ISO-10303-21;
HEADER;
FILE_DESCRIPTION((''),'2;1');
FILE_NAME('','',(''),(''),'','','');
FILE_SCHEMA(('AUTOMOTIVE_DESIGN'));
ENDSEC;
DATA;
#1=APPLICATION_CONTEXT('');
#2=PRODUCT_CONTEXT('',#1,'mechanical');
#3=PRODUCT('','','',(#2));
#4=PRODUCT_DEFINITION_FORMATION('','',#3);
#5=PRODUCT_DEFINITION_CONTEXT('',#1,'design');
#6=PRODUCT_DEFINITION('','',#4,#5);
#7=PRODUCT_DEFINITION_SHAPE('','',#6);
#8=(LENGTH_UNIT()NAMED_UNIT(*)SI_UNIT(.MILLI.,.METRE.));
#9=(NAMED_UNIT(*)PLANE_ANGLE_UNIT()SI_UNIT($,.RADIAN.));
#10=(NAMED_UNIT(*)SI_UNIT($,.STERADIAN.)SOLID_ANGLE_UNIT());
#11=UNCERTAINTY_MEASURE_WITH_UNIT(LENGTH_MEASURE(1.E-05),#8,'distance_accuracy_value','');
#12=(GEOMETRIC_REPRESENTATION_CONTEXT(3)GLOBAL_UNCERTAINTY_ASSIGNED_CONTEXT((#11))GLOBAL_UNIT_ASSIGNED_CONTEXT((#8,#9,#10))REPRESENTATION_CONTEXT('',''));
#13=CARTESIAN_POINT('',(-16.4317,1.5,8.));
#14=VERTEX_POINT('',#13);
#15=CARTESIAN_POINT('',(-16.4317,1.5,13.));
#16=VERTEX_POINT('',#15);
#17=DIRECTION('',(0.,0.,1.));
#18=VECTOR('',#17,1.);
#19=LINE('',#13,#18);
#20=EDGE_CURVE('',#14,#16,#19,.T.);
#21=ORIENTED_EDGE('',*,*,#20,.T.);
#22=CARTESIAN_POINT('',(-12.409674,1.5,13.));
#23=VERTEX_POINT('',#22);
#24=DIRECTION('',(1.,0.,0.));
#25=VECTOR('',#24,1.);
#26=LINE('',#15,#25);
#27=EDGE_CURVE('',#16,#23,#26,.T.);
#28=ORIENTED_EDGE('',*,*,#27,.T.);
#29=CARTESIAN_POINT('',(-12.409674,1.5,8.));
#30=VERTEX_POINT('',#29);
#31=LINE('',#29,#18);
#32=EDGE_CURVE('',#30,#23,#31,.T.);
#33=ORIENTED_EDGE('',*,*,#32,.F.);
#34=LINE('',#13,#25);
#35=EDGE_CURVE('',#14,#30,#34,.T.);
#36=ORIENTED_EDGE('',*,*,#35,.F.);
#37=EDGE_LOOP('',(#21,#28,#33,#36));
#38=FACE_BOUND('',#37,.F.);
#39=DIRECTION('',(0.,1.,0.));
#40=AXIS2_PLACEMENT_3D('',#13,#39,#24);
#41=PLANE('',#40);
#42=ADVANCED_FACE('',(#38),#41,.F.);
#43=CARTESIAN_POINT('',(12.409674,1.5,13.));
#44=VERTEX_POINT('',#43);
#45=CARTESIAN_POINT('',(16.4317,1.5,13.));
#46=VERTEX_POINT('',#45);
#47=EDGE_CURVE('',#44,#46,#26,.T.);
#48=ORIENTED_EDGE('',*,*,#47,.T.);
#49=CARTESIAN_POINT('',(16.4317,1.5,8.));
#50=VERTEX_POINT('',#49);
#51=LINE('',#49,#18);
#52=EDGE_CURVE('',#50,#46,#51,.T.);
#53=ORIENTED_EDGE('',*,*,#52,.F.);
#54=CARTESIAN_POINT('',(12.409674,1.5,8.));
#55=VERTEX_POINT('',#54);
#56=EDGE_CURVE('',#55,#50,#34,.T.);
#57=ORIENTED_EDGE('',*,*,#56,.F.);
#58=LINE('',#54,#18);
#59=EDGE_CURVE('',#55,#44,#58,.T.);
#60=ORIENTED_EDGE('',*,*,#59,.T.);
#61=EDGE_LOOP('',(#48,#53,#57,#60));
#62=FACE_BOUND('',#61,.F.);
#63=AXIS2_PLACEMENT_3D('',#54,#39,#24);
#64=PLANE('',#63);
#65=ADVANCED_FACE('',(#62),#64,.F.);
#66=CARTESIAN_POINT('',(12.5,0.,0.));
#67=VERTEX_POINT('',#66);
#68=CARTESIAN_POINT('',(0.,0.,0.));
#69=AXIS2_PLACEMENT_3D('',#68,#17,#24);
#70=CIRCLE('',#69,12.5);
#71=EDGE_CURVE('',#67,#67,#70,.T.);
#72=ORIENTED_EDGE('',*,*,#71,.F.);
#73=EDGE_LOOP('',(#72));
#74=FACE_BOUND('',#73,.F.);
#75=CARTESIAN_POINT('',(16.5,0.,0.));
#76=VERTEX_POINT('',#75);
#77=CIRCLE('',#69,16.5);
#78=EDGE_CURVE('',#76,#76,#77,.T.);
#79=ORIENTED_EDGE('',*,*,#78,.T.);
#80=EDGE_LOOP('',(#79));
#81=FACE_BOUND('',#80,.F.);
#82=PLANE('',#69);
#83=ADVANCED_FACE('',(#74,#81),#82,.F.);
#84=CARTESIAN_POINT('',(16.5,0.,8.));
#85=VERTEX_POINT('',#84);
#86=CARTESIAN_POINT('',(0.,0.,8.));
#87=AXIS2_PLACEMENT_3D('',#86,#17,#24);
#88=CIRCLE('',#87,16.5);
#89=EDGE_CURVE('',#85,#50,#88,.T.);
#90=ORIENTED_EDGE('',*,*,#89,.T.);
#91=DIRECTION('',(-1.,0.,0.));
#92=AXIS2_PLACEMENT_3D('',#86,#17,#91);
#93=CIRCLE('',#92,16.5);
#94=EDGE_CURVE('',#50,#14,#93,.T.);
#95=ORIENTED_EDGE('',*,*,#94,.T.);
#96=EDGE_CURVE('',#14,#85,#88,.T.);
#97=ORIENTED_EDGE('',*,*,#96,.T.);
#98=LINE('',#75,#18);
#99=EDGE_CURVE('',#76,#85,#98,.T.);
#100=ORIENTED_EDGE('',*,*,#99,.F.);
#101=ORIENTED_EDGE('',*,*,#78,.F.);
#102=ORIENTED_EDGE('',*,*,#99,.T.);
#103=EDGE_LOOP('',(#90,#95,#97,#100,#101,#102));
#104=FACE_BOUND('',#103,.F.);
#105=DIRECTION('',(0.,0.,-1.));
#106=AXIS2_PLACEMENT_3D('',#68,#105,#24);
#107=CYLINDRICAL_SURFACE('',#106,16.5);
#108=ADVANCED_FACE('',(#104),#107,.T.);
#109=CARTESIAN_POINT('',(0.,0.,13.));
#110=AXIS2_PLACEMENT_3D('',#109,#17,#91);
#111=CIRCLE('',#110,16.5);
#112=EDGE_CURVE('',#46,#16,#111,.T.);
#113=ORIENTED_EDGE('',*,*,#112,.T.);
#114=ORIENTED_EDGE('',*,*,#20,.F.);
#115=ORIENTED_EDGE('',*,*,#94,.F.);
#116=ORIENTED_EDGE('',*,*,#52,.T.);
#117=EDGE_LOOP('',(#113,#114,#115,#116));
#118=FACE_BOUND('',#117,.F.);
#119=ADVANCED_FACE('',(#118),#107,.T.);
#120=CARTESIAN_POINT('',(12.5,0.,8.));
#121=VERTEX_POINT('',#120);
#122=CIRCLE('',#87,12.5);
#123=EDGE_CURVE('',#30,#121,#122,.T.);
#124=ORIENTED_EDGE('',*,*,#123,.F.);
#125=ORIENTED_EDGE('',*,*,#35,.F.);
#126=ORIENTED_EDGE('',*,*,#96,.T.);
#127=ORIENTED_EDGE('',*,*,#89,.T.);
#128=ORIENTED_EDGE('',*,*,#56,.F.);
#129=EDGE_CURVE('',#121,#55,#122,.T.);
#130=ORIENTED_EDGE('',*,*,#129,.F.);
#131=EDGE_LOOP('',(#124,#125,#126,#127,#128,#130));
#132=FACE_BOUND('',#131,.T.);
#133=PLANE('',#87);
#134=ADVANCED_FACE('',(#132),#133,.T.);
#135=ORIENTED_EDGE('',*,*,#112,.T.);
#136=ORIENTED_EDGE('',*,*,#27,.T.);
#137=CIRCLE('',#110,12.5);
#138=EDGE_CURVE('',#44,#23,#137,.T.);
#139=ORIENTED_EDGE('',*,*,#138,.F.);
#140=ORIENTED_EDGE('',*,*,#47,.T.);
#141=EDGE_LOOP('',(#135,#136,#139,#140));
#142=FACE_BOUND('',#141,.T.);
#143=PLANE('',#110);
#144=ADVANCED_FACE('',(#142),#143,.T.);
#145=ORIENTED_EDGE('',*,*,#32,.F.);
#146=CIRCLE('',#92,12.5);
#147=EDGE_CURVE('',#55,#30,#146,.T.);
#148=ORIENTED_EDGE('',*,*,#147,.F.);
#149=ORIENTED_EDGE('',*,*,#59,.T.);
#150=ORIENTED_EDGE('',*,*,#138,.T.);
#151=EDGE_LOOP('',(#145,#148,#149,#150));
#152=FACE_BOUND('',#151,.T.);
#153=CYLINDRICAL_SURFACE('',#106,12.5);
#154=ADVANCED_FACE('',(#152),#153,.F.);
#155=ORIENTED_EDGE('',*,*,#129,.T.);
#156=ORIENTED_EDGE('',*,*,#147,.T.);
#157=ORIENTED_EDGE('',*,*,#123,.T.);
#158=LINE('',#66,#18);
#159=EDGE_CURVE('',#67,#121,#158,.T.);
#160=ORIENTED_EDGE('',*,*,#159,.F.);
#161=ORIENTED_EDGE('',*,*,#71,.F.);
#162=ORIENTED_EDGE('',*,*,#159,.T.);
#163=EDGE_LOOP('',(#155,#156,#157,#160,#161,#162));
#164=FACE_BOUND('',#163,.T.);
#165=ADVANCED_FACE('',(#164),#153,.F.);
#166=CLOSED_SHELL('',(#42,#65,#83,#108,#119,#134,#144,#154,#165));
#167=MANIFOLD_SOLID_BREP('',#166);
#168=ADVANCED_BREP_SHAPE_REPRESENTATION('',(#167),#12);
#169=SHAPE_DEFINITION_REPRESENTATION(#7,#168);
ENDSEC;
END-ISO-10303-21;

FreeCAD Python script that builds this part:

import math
import FreeCAD as App
import Part
import Sketcher
from FreeCAD import Vector
Q = App.Units.Quantity

doc = App.newDocument("Part")
params = doc.addObject("Spreadsheet::Sheet", "Params")
for row, (alias, value) in enumerate([
    ("sketch1_diameter", "33 mm"),
    ("sketch1_diameter2", "25 mm"),
    ("pad1_length", "8 mm"),
    ("sketch2_radius", "12.5 mm"),
    ("sketch2_radius2", "16.5 mm"),
    ("pad2_length", "5 mm"),
], start=1):
    params.set(f"A{row}", alias)
    params.set(f"B{row}", "=" + value)
    params.setAlias(f"B{row}", alias)

body = doc.addObject("PartDesign::Body", "Body")

sketch1 = body.newObject("Sketcher::SketchObject", "Sketch")
sketch1.AttachmentSupport = (doc.getObject("XY_Plane"), [""])
sketch1.MapMode = "FlatFace"
sketch1.addGeometry(Part.Circle(Vector(0, 0, 0), Vector(0, 0, 1), 16), False)
sketch1.addGeometry(Part.Circle(Vector(0, 0, 0), Vector(0, 0, 1), 12), False)
sketch1.addConstraint(Sketcher.Constraint("Coincident", 0, 3, -1, 1))
sketch1.addConstraint(Sketcher.Constraint("Coincident", 1, 3, -1, 1))
sketch1.addConstraint(Sketcher.Constraint("Diameter", 0, Q("33 mm")))
sketch1.addConstraint(Sketcher.Constraint("Diameter", 1, Q("25 mm")))
sketch1.setExpression("Constraints[2]", "Params.sketch1_diameter")
sketch1.setExpression("Constraints[3]", "Params.sketch1_diameter2")
pad1 = body.newObject("PartDesign::Pad", "Pad")
pad1.Profile = sketch1
pad1.setExpression("Length", "Params.pad1_length")

sketch2 = body.newObject("Sketcher::SketchObject", "Sketch001")
sketch2.AttachmentSupport = (doc.getObject("XY_Plane"), [""])
sketch2.MapMode = "FlatFace"
sketch2.AttachmentOffset = App.Placement(Vector(0, 0, 8), App.Rotation())
sketch2.addGeometry(Part.ArcOfCircle(Part.Circle(Vector(0, 0, 0), Vector(0, 0, 1), 12.5), math.radians(7), math.radians(173)), False)
sketch2.addGeometry(Part.LineSegment(Vector(12.4, 1.5, 0), Vector(16.4, 1.5, 0)), False)
sketch2.addGeometry(Part.ArcOfCircle(Part.Circle(Vector(0, 0, 0), Vector(0, 0, 1), 16.5), math.radians(5), math.radians(175)), False)
sketch2.addGeometry(Part.LineSegment(Vector(-16.4, 1.5, 0), Vector(-12.4, 1.5, 0)), False)
sketch2.addConstraint(Sketcher.Constraint("Coincident", 0, 1, 1, 1))
sketch2.addConstraint(Sketcher.Constraint("Coincident", 1, 2, 2, 1))
sketch2.addConstraint(Sketcher.Constraint("Coincident", 2, 2, 3, 1))
sketch2.addConstraint(Sketcher.Constraint("Coincident", 3, 2, 0, 2))
sketch2.addConstraint(Sketcher.Constraint("Horizontal", 1))
sketch2.addConstraint(Sketcher.Constraint("Horizontal", 3))
sketch2.addConstraint(Sketcher.Constraint("Coincident", 0, 3, -1, 1))
sketch2.addConstraint(Sketcher.Constraint("Coincident", 2, 3, -1, 1))
sketch2.addConstraint(Sketcher.Constraint("Horizontal", 1, 2, 2, 2))
sketch2.addConstraint(Sketcher.Constraint("Radius", 0, Q("12.5 mm")))
sketch2.addConstraint(Sketcher.Constraint("Radius", 2, Q("16.5 mm")))
sketch2.addConstraint(Sketcher.Constraint("DistanceY", -1, 1, 0, 1, Q("1.5 mm")))
sketch2.setExpression("Constraints[9]", "Params.sketch2_radius")
sketch2.setExpression("Constraints[10]", "Params.sketch2_radius2")
pad2 = body.newObject("PartDesign::Pad", "Pad001")
pad2.Profile = sketch2
pad2.setExpression("Length", "Params.pad2_length")

doc.recompute()
